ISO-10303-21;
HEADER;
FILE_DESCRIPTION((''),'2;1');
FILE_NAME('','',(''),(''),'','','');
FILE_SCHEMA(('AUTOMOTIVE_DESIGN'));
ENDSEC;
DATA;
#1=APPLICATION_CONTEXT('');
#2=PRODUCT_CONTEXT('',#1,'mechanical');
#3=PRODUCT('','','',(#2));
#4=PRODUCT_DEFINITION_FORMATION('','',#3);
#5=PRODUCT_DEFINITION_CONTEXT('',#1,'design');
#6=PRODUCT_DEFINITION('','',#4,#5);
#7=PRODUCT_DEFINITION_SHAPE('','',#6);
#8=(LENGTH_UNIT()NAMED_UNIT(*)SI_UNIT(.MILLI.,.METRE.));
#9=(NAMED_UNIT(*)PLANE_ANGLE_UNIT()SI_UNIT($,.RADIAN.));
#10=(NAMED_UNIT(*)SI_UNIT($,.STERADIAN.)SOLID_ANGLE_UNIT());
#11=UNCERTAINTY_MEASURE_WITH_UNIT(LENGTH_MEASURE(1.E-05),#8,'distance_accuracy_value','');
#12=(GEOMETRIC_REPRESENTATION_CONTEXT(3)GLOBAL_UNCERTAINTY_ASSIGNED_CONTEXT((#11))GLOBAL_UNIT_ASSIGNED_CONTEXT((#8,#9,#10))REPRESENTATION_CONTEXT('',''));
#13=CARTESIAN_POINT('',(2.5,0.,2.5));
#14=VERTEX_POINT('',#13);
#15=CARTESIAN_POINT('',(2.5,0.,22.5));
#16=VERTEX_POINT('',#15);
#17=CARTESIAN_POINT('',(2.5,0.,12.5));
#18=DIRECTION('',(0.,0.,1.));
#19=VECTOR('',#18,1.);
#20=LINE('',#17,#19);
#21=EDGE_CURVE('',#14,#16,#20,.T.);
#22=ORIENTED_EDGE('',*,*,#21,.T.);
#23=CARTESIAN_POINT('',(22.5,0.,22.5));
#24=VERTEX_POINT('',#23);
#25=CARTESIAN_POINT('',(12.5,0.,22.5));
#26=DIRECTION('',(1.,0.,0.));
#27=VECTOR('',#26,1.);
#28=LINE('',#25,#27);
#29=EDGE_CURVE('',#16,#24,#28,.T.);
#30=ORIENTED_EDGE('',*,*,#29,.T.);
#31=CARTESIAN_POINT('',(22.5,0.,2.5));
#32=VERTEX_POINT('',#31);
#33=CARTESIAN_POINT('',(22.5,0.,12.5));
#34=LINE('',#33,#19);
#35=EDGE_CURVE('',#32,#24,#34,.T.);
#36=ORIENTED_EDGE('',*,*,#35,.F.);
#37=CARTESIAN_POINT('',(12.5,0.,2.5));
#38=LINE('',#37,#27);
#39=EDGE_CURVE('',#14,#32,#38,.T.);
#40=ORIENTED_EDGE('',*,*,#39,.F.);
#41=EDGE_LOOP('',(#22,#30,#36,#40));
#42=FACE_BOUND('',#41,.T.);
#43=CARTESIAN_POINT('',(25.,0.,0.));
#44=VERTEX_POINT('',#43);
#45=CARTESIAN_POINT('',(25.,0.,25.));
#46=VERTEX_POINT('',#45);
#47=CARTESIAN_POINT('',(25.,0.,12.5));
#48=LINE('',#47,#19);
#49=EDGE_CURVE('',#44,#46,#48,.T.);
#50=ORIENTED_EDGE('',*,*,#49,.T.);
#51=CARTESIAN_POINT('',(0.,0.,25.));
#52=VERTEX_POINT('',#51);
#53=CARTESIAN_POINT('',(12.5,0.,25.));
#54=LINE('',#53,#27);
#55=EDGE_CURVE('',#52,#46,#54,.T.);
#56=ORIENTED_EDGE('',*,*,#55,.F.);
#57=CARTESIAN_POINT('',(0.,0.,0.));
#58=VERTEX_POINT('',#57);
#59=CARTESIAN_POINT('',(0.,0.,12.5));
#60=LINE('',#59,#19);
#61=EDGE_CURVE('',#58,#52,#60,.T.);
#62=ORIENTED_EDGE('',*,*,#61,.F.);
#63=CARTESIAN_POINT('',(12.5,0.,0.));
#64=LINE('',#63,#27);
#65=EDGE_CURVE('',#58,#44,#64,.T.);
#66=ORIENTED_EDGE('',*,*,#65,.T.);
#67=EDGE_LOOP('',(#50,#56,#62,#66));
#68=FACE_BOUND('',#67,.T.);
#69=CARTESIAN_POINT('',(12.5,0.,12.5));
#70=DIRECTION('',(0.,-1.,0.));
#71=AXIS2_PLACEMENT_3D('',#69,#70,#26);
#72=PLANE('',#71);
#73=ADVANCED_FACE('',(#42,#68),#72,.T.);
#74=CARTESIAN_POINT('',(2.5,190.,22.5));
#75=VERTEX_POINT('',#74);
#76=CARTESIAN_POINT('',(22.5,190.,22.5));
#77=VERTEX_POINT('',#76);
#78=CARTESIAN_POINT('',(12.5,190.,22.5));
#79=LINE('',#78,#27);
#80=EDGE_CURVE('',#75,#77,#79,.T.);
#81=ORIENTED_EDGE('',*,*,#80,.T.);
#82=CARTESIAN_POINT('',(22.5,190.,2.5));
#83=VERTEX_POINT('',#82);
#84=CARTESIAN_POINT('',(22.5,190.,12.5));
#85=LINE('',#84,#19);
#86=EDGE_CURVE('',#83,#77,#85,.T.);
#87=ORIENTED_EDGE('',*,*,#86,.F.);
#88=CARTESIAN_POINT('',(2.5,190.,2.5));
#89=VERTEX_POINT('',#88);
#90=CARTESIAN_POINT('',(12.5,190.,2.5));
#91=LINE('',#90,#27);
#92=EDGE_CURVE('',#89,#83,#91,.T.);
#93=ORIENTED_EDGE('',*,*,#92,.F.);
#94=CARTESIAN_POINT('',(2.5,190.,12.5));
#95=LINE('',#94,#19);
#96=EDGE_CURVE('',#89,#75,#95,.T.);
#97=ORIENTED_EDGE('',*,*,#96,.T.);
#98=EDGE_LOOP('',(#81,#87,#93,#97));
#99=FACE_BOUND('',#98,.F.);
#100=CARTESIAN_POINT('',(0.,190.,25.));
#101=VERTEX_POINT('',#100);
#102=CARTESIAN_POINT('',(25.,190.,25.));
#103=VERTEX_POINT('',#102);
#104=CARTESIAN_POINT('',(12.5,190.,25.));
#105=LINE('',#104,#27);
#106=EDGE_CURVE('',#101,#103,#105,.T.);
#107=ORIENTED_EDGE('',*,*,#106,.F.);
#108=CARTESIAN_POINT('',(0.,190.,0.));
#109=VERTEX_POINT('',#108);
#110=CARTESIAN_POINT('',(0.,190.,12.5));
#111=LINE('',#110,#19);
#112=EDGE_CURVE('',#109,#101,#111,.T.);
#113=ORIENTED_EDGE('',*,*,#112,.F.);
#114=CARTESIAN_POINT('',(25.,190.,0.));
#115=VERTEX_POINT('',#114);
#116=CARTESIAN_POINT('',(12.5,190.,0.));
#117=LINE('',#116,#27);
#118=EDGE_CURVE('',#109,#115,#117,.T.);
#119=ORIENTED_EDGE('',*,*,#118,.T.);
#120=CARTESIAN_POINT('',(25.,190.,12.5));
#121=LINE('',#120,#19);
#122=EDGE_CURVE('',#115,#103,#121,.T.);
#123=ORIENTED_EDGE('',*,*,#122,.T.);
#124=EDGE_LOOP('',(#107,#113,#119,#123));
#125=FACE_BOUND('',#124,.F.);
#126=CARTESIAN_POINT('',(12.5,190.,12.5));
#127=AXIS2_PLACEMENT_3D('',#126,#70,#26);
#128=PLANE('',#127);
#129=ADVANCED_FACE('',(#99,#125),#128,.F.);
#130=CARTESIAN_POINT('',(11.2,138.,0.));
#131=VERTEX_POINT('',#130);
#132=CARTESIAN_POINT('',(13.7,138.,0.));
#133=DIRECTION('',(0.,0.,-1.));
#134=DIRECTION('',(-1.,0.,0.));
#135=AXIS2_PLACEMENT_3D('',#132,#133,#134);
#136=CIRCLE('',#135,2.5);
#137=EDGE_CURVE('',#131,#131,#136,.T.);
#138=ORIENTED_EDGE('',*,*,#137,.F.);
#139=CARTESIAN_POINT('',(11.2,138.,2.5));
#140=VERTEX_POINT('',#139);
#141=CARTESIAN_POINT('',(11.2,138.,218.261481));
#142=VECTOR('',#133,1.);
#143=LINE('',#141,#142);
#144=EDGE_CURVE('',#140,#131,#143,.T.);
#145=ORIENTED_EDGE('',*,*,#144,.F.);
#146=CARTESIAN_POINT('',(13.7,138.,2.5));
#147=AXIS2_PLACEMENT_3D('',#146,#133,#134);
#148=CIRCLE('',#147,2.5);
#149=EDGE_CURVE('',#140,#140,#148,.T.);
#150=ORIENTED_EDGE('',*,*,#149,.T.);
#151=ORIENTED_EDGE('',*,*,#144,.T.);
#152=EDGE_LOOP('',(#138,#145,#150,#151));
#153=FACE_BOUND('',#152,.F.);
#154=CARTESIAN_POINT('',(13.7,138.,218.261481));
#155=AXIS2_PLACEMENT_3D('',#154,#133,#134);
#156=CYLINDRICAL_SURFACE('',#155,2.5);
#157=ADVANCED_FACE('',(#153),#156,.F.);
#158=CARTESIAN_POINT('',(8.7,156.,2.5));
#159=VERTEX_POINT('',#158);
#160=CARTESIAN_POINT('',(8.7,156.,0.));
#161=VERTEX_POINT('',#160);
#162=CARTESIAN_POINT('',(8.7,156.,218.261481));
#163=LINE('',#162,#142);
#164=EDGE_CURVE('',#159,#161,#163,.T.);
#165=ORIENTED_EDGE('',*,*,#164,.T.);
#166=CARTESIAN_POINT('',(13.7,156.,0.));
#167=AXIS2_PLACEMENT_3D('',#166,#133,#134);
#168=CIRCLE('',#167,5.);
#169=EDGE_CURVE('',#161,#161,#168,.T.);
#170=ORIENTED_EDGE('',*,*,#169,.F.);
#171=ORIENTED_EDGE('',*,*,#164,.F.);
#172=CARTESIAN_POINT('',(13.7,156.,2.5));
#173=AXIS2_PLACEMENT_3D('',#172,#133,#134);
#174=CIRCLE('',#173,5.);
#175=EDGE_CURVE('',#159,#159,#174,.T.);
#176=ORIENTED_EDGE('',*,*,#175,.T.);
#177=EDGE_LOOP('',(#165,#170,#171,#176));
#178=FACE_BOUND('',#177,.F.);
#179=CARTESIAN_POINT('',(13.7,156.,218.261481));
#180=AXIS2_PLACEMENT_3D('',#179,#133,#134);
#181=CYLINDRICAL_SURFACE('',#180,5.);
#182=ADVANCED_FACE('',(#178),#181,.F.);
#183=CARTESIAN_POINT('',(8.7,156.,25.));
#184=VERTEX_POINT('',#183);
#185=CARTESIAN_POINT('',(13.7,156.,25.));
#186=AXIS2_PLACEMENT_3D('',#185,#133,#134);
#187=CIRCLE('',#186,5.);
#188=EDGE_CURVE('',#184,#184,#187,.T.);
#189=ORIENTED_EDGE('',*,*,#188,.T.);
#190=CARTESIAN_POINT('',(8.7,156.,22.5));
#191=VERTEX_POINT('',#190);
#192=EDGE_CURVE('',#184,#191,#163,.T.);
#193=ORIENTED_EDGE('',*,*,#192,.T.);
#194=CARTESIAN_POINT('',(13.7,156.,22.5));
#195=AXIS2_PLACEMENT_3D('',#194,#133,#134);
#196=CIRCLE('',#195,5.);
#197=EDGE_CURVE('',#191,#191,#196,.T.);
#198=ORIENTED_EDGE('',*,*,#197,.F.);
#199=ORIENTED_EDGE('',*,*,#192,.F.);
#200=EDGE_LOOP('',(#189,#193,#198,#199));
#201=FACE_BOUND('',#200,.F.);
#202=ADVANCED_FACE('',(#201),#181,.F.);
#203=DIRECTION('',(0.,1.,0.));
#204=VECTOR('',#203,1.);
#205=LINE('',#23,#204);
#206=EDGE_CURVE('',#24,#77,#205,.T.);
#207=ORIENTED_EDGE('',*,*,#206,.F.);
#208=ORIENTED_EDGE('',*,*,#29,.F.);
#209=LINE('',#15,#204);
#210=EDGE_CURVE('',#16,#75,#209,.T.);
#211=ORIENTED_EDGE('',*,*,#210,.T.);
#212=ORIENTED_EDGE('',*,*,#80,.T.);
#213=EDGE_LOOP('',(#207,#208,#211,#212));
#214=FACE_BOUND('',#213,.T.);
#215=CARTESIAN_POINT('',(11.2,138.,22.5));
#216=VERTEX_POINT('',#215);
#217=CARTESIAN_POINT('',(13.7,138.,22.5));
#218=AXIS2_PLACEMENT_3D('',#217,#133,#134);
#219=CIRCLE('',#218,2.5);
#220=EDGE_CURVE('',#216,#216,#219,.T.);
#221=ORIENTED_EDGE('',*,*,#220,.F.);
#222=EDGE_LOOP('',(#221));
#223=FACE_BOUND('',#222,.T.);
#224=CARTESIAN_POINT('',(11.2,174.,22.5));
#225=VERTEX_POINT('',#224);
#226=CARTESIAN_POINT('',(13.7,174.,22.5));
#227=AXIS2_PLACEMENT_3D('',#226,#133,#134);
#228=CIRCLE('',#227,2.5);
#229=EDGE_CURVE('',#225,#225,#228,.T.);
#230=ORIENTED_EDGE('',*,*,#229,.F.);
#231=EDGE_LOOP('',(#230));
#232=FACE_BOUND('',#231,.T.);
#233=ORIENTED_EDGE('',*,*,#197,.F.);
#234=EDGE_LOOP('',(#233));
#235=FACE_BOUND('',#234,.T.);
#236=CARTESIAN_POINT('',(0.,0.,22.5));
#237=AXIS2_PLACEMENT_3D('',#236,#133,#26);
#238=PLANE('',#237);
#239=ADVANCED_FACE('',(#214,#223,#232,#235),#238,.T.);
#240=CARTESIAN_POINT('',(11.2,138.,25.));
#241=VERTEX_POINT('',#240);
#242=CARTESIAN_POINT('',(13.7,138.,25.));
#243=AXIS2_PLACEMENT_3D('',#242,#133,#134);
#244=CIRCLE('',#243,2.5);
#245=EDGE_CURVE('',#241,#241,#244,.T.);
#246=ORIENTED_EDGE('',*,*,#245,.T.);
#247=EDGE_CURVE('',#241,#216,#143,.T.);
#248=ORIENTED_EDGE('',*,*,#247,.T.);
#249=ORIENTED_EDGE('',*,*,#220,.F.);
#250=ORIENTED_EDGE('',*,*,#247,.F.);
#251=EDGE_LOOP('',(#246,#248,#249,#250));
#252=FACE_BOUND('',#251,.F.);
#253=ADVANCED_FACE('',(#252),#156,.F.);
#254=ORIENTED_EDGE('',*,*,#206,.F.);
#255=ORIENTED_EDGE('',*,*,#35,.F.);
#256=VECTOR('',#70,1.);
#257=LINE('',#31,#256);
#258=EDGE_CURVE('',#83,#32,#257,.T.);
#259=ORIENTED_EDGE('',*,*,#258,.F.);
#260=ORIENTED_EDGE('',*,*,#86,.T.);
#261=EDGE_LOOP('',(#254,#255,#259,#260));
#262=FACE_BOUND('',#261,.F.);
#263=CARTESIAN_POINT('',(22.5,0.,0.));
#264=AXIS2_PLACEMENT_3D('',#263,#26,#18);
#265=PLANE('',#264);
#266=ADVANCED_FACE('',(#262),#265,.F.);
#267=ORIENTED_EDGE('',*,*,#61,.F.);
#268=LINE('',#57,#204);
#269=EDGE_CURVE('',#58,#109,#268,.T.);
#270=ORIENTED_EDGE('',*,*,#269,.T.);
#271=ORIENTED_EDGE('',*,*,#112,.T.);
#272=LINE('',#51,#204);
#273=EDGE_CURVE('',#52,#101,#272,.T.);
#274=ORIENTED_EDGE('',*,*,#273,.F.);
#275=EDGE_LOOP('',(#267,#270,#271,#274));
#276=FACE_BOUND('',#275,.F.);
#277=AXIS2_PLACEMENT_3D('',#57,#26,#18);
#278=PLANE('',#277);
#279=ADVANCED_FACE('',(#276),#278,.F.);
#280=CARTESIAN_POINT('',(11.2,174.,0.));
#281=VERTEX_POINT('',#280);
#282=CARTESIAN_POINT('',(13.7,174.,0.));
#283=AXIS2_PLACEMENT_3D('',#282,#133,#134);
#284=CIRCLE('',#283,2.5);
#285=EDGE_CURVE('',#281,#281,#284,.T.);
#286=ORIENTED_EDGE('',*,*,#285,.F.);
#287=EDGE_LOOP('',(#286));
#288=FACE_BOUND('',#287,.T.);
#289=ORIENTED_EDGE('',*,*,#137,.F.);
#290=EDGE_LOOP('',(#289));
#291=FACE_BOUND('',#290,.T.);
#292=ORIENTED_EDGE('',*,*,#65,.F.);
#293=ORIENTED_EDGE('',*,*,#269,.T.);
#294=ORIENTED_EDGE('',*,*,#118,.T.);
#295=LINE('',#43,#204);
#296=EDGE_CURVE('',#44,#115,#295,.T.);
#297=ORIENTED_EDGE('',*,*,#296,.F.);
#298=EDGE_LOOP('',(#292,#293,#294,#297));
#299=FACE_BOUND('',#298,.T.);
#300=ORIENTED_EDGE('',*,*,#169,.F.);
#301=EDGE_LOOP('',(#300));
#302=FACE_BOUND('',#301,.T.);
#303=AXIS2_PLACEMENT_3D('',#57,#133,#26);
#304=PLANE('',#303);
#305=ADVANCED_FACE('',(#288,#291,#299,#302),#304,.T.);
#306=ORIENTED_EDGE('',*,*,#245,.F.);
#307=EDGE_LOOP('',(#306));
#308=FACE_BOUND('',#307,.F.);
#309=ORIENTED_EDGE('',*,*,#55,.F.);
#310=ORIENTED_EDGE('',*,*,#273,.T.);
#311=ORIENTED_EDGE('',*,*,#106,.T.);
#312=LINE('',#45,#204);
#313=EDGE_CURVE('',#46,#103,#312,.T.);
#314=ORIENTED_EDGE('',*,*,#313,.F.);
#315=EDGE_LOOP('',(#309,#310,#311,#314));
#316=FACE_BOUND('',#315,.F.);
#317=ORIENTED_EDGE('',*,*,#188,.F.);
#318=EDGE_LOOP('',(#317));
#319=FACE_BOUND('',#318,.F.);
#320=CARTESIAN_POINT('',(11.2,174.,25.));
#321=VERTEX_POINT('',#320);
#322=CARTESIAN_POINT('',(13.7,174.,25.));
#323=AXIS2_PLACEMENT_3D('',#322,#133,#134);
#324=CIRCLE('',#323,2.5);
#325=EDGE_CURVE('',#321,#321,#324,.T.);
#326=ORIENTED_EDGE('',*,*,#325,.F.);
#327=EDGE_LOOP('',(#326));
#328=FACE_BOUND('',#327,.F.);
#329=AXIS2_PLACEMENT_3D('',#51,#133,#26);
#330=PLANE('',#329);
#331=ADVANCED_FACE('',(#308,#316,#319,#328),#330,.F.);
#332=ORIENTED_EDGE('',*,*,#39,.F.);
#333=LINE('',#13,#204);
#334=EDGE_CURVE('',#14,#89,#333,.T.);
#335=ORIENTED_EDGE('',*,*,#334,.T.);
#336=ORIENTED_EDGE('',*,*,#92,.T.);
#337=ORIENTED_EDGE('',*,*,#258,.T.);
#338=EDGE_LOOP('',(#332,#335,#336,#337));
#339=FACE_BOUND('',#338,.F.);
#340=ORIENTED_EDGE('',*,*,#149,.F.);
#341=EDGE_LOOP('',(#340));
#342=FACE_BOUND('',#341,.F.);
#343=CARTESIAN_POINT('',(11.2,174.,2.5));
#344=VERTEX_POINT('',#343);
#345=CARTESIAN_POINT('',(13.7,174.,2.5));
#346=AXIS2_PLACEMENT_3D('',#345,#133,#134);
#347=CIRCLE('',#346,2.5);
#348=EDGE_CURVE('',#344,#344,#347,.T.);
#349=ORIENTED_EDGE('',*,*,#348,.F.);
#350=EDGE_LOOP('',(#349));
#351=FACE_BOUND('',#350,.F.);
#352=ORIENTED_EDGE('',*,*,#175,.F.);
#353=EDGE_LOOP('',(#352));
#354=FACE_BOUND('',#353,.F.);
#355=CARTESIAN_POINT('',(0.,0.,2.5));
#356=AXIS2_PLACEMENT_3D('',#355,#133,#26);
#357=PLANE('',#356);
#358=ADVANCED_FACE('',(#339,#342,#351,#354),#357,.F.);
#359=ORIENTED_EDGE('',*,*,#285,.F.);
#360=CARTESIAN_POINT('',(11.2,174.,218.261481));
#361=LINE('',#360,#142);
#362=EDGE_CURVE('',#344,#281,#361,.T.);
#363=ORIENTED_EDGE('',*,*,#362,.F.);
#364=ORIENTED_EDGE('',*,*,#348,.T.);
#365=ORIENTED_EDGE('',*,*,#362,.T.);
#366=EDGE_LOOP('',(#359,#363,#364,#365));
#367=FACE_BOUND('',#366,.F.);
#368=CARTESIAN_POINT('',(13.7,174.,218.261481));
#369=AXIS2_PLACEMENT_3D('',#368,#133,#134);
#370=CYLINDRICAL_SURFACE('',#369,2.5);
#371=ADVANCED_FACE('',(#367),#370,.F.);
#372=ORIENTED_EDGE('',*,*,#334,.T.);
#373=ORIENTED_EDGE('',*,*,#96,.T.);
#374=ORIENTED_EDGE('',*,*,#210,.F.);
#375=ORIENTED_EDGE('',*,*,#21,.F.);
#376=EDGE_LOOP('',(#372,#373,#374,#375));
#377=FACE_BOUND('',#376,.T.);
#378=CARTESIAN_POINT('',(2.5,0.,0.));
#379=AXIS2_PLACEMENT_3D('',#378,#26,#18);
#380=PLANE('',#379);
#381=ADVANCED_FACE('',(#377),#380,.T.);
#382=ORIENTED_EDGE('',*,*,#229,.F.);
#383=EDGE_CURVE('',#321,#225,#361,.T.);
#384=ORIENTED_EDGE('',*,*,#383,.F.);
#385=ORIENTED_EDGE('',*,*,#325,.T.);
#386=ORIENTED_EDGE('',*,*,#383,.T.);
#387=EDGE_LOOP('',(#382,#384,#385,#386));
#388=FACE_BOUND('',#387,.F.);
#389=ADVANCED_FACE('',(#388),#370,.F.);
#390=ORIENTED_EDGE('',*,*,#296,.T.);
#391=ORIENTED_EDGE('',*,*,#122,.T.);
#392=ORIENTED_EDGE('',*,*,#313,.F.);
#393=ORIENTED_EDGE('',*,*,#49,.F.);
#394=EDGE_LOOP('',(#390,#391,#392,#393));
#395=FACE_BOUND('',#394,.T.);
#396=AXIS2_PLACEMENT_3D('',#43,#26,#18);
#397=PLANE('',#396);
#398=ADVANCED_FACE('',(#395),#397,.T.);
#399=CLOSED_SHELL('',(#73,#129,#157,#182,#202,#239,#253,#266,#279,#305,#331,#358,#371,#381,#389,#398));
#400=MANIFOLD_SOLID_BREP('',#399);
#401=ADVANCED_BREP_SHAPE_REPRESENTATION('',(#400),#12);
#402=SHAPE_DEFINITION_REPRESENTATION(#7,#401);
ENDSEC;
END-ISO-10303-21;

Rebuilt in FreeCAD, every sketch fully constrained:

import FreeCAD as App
import Part
import Sketcher

V = App.Vector


def faces_at(feature, points):
    """Names of the faces that lie closest to the given points."""
    faces = feature.Shape.Faces
    near = lambda p: min(range(len(faces)), key=lambda i: faces[i].distToShape(Part.Vertex(*p))[0])
    return sorted({f"Face{near(p) + 1}" for p in points})


def add_polygon(sketch, points):
    """Adds a closed chain of lines whose ends are joined by coincident constraints."""
    first, n = sketch.GeometryCount, len(points)
    for a, b in zip(points, points[1:] + points[:1]):
        sketch.addGeometry(Part.LineSegment(App.Vector(*a, 0), App.Vector(*b, 0)), False)
    for i in range(n):
        sketch.addConstraint(Sketcher.Constraint("Coincident", first + i, 2, first + (i + 1) % n, 1))

doc = App.newDocument("Part")
body = doc.addObject("PartDesign::Body", "Body")

sketch1 = doc.addObject("Sketcher::SketchObject", "Sketch")
body.addObject(sketch1)
sketch1.AttachmentSupport = (doc.XZ_Plane, [""])
sketch1.MapMode = "FlatFace"
add_polygon(sketch1, [(0, 25), (0, 0), (25, 0), (25, 25)])
sketch1.addConstraint([
    Sketcher.Constraint("Vertical", 0),
    Sketcher.Constraint("Horizontal", 1),
    Sketcher.Constraint("Vertical", 2),
    Sketcher.Constraint("Horizontal", 3),
    Sketcher.Constraint("Coincident", 0, 2, -1, 1),
    Sketcher.Constraint("Equal", 3, 0),
    Sketcher.Constraint("DistanceX", 1, 1, 1, 2, 25.0),
])
pad1 = doc.addObject("PartDesign::Pad", "Pad")
body.addObject(pad1)
pad1.Profile = sketch1
pad1.Length = 190
pad1.Reversed = True
doc.recompute()

thickness = doc.addObject("PartDesign::Thickness", "Thickness")
body.addObject(thickness)
thickness.Base = (pad1, faces_at(pad1, [(12.5, 0, 12.5), (12.5, 190, 12.5)]))
thickness.Value = 2.5
thickness.Reversed = True
thickness.Join = "Arc"

sketch2 = doc.addObject("Sketcher::SketchObject", "Sketch001")
body.addObject(sketch2)
sketch2.AttachmentSupport = (doc.XY_Plane, [""])
sketch2.MapMode = "FlatFace"
sketch2.AttachmentOffset = App.Placement(V(0, 0, 25), App.Rotation())
sketch2.addGeometry(Part.Circle(V(14, 156, 0), V(0, 0, 1), 5), False)
sketch2.addConstraint([
    Sketcher.Constraint("Diameter", 0, 10.0),
    Sketcher.Constraint("DistanceY", -1, 1, 0, 3, 156.0),
    Sketcher.Constraint("DistanceX", -1, 1, 0, 3, 13.7),
])
doc.recompute()
hole = doc.addObject("PartDesign::Hole", "Hole")
body.addObject(hole)
hole.Profile = sketch2
hole.ThreadType = "None"
hole.Diameter = 10
hole.DepthType = "ThroughAll"

sketch3 = doc.addObject("Sketcher::SketchObject", "Sketch002")
body.addObject(sketch3)
sketch3.AttachmentSupport = (doc.XY_Plane, [""])
sketch3.MapMode = "FlatFace"
sketch3.AttachmentOffset = App.Placement(V(0, 0, 25), App.Rotation())
sketch3.addGeometry([
    Part.Circle(V(13.7, 138, 0), V(0, 0, 1), 2.5),
    Part.Circle(V(13.7, 174, 0), V(0, 0, 1), 2.5),
], False)
sketch3.addConstraint([
    Sketcher.Constraint("Equal", 0, 1),
    Sketcher.Constraint("Vertical", 0, 3, 1, 3),
    Sketcher.Constraint("Diameter", 0, 5.0),
    Sketcher.Constraint("DistanceY", -1, 1, 0, 3, 138.0),
    Sketcher.Constraint("DistanceY", -1, 1, 1, 3, 174.0),
    Sketcher.Constraint("DistanceX", -1, 1, 0, 3, 13.7),
])
doc.recompute()
hole2 = doc.addObject("PartDesign::Hole", "Hole001")
body.addObject(hole2)
hole2.Profile = sketch3
hole2.ThreadType = "None"
hole2.Diameter = 5
hole2.DepthType = "ThroughAll"

doc.recompute()
